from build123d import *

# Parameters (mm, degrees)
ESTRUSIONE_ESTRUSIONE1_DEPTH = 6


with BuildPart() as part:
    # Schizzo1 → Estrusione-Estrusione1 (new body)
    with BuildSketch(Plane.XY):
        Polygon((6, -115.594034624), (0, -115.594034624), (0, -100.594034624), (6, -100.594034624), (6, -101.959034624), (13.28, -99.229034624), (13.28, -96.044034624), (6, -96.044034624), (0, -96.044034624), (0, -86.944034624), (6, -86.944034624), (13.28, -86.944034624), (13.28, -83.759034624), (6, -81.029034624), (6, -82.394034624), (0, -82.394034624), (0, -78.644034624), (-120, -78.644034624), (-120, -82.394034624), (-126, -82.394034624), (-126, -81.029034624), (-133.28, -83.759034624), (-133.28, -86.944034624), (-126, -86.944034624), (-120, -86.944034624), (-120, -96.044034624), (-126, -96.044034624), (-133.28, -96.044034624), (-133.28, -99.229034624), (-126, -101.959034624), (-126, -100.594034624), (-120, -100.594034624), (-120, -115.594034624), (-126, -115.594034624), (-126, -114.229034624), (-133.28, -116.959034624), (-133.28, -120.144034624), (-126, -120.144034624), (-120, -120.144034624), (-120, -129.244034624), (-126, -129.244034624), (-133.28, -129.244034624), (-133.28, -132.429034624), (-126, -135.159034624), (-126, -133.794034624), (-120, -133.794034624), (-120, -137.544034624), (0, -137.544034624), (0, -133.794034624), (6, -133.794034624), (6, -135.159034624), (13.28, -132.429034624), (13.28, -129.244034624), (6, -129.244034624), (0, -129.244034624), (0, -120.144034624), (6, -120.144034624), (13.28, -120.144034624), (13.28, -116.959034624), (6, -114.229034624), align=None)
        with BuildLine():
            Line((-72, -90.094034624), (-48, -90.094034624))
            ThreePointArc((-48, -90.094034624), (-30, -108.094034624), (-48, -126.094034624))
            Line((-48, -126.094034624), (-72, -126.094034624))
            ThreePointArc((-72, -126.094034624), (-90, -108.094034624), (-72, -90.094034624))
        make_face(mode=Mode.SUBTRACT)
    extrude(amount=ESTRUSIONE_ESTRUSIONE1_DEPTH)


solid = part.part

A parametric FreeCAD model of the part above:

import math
import FreeCAD as App
import Part
import Sketcher
Q = App.Units.Quantity


def add_polygon(sketch, points):
    """Adds a closed chain of lines whose ends are joined by coincident constraints."""
    first, n = sketch.GeometryCount, len(points)
    for a, b in zip(points, points[1:] + points[:1]):
        sketch.addGeometry(Part.LineSegment(App.Vector(*a, 0), App.Vector(*b, 0)), False)
    for i in range(n):
        sketch.addConstraint(Sketcher.Constraint("Coincident", first + i, 2, first + (i + 1) % n, 1))

doc = App.newDocument("Part")
body = doc.addObject("PartDesign::Body", "Body")

sketch1 = doc.addObject("Sketcher::SketchObject", "Sketch")
body.addObject(sketch1)
sketch1.AttachmentSupport = (doc.XY_Plane, [""])
sketch1.MapMode = "FlatFace"
add_polygon(sketch1, [(6, -115.6), (0, -115.6), (0, -100.6), (6, -100.6), (6, -102), (13.3, -99.2), (13.3, -96), (0, -96), (0, -86.9), (13.3, -86.9), (13.3, -83.8), (6, -81), (6, -82.4), (0, -82.4), (0, -78.6), (-120, -78.6), (-120, -82.4), (-126, -82.4), (-126, -81), (-133.3, -83.8), (-133.3, -86.9), (-120, -86.9), (-120, -96), (-133.3, -96), (-133.3, -99.2), (-126, -102), (-126, -100.6), (-120, -100.6), (-120, -115.6), (-126, -115.6), (-126, -114.2), (-133.3, -117), (-133.3, -120.1), (-120, -120.1), (-120, -129.2), (-133.3, -129.2), (-133.3, -132.4), (-126, -135.2), (-126, -133.8), (-120, -133.8), (-120, -137.5), (0, -137.5), (0, -133.8), (6, -133.8), (6, -135.2), (13.3, -132.4), (13.3, -129.2), (0, -129.2), (0, -120.1), (13.3, -120.1), (13.3, -117), (6, -114.2)])
sketch1.addGeometry(Part.ArcOfCircle(Part.Circle(App.Vector(-72, -108.1, 0), App.Vector(0, 0, 1), 18), math.radians(90), math.radians(270)), False)
sketch1.addGeometry(Part.LineSegment(App.Vector(-72, -90.1, 0), App.Vector(-48, -90.1, 0)), False)
sketch1.addGeometry(Part.ArcOfCircle(Part.Circle(App.Vector(-48, -108.1, 0), App.Vector(0, 0, 1), 18), math.radians(-90), math.radians(90)), False)
sketch1.addGeometry(Part.LineSegment(App.Vector(-48, -126.1, 0), App.Vector(-72, -126.1, 0)), False)
sketch1.addConstraint([
    Sketcher.Constraint("Tangent", 52, 1, 53, 1),
    Sketcher.Constraint("Tangent", 53, 2, 54, 2),
    Sketcher.Constraint("Tangent", 54, 1, 55, 1),
    Sketcher.Constraint("Tangent", 55, 2, 52, 2),
    Sketcher.Constraint("Horizontal", 0),
    Sketcher.Constraint("Vertical", 1),
    Sketcher.Constraint("Horizontal", 2),
    Sketcher.Constraint("Vertical", 3),
    Sketcher.Constraint("Vertical", 5),
    Sketcher.Constraint("Horizontal", 6),
    Sketcher.Constraint("Vertical", 7),
    Sketcher.Constraint("Horizontal", 8),
    Sketcher.Constraint("Vertical", 9),
    Sketcher.Constraint("Vertical", 11),
    Sketcher.Constraint("Horizontal", 12),
    Sketcher.Constraint("Vertical", 13),
    Sketcher.Constraint("Horizontal", 14),
    Sketcher.Constraint("Vertical", 15),
    Sketcher.Constraint("Horizontal", 16),
    Sketcher.Constraint("Vertical", 17),
    Sketcher.Constraint("Vertical", 19),
    Sketcher.Constraint("Horizontal", 20),
    Sketcher.Constraint("Vertical", 21),
    Sketcher.Constraint("Horizontal", 22),
    Sketcher.Constraint("Vertical", 23),
    Sketcher.Constraint("Vertical", 25),
    Sketcher.Constraint("Horizontal", 26),
    Sketcher.Constraint("Vertical", 27),
    Sketcher.Constraint("Horizontal", 28),
    Sketcher.Constraint("Vertical", 29),
    Sketcher.Constraint("Vertical", 31),
    Sketcher.Constraint("Horizontal", 32),
    Sketcher.Constraint("Vertical", 33),
    Sketcher.Constraint("Horizontal", 34),
    Sketcher.Constraint("Vertical", 35),
    Sketcher.Constraint("Vertical", 37),
    Sketcher.Constraint("Horizontal", 38),
    Sketcher.Constraint("Vertical", 39),
    Sketcher.Constraint("Horizontal", 40),
    Sketcher.Constraint("Vertical", 41),
    Sketcher.Constraint("Horizontal", 42),
    Sketcher.Constraint("Vertical", 43),
    Sketcher.Constraint("Vertical", 45),
    Sketcher.Constraint("Horizontal", 46),
    Sketcher.Constraint("Vertical", 47),
    Sketcher.Constraint("Horizontal", 48),
    Sketcher.Constraint("Vertical", 49),
    Sketcher.Constraint("Vertical", 51),
    Sketcher.Constraint("Horizontal", 53),
    Sketcher.Constraint("Horizontal", 55),
    Sketcher.Constraint("PointOnObject", 0, 2, -2),
    Sketcher.Constraint("PointOnObject", 6, 2, -2),
    Sketcher.Constraint("PointOnObject", 12, 2, -2),
    Sketcher.Constraint("PointOnObject", 40, 2, -2),
    Sketcher.Constraint("PointOnObject", 46, 2, -2),
    Sketcher.Constraint("Parallel", 4, 18),
    Sketcher.Constraint("Parallel", 10, 24),
    Sketcher.Constraint("Parallel", 18, 30),
    Sketcher.Constraint("Parallel", 24, 36),
    Sketcher.Constraint("Parallel", 30, 44),
    Sketcher.Constraint("Parallel", 36, 50),
    Sketcher.Constraint("Horizontal", 12, 2, 15, 2),
    Sketcher.Constraint("Horizontal", 10, 2, 17, 2),
    Sketcher.Constraint("Horizontal", 9, 2, 18, 2),
    Sketcher.Constraint("Horizontal", 8, 2, 19, 2),
    Sketcher.Constraint("Horizontal", 6, 2, 21, 2),
    Sketcher.Constraint("Horizontal", 4, 2, 23, 2),
    Sketcher.Constraint("Horizontal", 3, 2, 24, 2),
    Sketcher.Constraint("Horizontal", 2, 2, 25, 2),
    Sketcher.Constraint("Horizontal", 0, 2, 27, 2),
    Sketcher.Constraint("Horizontal", 38, 2, 41, 2),
    Sketcher.Constraint("Horizontal", 36, 2, 43, 2),
    Sketcher.Constraint("Horizontal", 35, 2, 44, 2),
    Sketcher.Constraint("Horizontal", 34, 2, 45, 2),
    Sketcher.Constraint("Horizontal", 32, 2, 47, 2),
    Sketcher.Constraint("Horizontal", 30, 2, 49, 2),
    Sketcher.Constraint("Horizontal", 29, 2, 50, 2),
    Sketcher.Constraint("Vertical", 5, 2, 8, 2),
    Sketcher.Constraint("Vertical", 3, 2, 10, 2),
    Sketcher.Constraint("Vertical", 15, 2, 20, 2),
    Sketcher.Constraint("Vertical", 19, 2, 22, 2),
    Sketcher.Constraint("Vertical", 17, 2, 24, 2),
    Sketcher.Constraint("Vertical", 21, 2, 26, 2),
    Sketcher.Constraint("Vertical", 25, 2, 28, 2),
    Sketcher.Constraint("Vertical", 23, 2, 30, 2),
    Sketcher.Constraint("Vertical", 27, 2, 32, 2),
    Sketcher.Constraint("Vertical", 31, 2, 34, 2),
    Sketcher.Constraint("Vertical", 29, 2, 36, 2),
    Sketcher.Constraint("Vertical", 33, 2, 38, 2),
    Sketcher.Constraint("Vertical", 11, 2, 42, 2),
    Sketcher.Constraint("Vertical", 45, 2, 48, 2),
    Sketcher.Constraint("Equal", 12, 16),
    Sketcher.Constraint("Equal", 5, 9),
    Sketcher.Constraint("Equal", 3, 11),
    Sketcher.Constraint("Equal", 25, 29),
    Sketcher.Constraint("Equal", 23, 31),
    Sketcher.Constraint("Equal", 21, 33),
    Sketcher.Constraint("Equal", 31, 35),
    Sketcher.Constraint("Equal", 29, 37),
    Sketcher.Constraint("Equal", 15, 39),
    Sketcher.Constraint("Radius", 52, Q("18 mm")),
    Sketcher.Constraint("DistanceX", 0, 2, 0, 1, Q("6 mm")),
    Sketcher.Constraint("DistanceX", 14, 2, 14, 1, Q("120 mm")),
    Sketcher.Constraint("DistanceX", 53, 1, 53, 2, Q("24 mm")),
    Sketcher.Constraint("DistanceY", 1, 1, 1, 2, Q("15 mm")),
    Sketcher.Constraint("DistanceY", 7, 1, 7, 2, Q("9.1 mm")),
    Sketcher.Constraint("DistanceX", 52, 3, -1, 1, Q("72 mm")),
    Sketcher.Constraint("DistanceY", 30, 2, 24, 2, Q("15 mm")),
    Sketcher.Constraint("DistanceX", 6, 2, 6, 1, Q("13.28 mm")),
    Sketcher.Constraint("DistanceY", 13, 1, 13, 2, Q("3.75 mm")),
    Sketcher.Constraint("DistanceY", 0, 2, 54, 3, Q("7.5 mm")),
    Sketcher.Constraint("DistanceY", 7, 2, 13, 2, Q("8.3 mm")),
    Sketcher.Constraint("DistanceY", 3, 2, 3, 1, Q("1.365 mm")),
    Sketcher.Constraint("DistanceY", 52, 3, -1, 1, Q("108.094035 mm")),
])
pad1 = doc.addObject("PartDesign::Pad", "Pad")
body.addObject(pad1)
pad1.Profile = sketch1
pad1.Length = 6

doc.recompute()
